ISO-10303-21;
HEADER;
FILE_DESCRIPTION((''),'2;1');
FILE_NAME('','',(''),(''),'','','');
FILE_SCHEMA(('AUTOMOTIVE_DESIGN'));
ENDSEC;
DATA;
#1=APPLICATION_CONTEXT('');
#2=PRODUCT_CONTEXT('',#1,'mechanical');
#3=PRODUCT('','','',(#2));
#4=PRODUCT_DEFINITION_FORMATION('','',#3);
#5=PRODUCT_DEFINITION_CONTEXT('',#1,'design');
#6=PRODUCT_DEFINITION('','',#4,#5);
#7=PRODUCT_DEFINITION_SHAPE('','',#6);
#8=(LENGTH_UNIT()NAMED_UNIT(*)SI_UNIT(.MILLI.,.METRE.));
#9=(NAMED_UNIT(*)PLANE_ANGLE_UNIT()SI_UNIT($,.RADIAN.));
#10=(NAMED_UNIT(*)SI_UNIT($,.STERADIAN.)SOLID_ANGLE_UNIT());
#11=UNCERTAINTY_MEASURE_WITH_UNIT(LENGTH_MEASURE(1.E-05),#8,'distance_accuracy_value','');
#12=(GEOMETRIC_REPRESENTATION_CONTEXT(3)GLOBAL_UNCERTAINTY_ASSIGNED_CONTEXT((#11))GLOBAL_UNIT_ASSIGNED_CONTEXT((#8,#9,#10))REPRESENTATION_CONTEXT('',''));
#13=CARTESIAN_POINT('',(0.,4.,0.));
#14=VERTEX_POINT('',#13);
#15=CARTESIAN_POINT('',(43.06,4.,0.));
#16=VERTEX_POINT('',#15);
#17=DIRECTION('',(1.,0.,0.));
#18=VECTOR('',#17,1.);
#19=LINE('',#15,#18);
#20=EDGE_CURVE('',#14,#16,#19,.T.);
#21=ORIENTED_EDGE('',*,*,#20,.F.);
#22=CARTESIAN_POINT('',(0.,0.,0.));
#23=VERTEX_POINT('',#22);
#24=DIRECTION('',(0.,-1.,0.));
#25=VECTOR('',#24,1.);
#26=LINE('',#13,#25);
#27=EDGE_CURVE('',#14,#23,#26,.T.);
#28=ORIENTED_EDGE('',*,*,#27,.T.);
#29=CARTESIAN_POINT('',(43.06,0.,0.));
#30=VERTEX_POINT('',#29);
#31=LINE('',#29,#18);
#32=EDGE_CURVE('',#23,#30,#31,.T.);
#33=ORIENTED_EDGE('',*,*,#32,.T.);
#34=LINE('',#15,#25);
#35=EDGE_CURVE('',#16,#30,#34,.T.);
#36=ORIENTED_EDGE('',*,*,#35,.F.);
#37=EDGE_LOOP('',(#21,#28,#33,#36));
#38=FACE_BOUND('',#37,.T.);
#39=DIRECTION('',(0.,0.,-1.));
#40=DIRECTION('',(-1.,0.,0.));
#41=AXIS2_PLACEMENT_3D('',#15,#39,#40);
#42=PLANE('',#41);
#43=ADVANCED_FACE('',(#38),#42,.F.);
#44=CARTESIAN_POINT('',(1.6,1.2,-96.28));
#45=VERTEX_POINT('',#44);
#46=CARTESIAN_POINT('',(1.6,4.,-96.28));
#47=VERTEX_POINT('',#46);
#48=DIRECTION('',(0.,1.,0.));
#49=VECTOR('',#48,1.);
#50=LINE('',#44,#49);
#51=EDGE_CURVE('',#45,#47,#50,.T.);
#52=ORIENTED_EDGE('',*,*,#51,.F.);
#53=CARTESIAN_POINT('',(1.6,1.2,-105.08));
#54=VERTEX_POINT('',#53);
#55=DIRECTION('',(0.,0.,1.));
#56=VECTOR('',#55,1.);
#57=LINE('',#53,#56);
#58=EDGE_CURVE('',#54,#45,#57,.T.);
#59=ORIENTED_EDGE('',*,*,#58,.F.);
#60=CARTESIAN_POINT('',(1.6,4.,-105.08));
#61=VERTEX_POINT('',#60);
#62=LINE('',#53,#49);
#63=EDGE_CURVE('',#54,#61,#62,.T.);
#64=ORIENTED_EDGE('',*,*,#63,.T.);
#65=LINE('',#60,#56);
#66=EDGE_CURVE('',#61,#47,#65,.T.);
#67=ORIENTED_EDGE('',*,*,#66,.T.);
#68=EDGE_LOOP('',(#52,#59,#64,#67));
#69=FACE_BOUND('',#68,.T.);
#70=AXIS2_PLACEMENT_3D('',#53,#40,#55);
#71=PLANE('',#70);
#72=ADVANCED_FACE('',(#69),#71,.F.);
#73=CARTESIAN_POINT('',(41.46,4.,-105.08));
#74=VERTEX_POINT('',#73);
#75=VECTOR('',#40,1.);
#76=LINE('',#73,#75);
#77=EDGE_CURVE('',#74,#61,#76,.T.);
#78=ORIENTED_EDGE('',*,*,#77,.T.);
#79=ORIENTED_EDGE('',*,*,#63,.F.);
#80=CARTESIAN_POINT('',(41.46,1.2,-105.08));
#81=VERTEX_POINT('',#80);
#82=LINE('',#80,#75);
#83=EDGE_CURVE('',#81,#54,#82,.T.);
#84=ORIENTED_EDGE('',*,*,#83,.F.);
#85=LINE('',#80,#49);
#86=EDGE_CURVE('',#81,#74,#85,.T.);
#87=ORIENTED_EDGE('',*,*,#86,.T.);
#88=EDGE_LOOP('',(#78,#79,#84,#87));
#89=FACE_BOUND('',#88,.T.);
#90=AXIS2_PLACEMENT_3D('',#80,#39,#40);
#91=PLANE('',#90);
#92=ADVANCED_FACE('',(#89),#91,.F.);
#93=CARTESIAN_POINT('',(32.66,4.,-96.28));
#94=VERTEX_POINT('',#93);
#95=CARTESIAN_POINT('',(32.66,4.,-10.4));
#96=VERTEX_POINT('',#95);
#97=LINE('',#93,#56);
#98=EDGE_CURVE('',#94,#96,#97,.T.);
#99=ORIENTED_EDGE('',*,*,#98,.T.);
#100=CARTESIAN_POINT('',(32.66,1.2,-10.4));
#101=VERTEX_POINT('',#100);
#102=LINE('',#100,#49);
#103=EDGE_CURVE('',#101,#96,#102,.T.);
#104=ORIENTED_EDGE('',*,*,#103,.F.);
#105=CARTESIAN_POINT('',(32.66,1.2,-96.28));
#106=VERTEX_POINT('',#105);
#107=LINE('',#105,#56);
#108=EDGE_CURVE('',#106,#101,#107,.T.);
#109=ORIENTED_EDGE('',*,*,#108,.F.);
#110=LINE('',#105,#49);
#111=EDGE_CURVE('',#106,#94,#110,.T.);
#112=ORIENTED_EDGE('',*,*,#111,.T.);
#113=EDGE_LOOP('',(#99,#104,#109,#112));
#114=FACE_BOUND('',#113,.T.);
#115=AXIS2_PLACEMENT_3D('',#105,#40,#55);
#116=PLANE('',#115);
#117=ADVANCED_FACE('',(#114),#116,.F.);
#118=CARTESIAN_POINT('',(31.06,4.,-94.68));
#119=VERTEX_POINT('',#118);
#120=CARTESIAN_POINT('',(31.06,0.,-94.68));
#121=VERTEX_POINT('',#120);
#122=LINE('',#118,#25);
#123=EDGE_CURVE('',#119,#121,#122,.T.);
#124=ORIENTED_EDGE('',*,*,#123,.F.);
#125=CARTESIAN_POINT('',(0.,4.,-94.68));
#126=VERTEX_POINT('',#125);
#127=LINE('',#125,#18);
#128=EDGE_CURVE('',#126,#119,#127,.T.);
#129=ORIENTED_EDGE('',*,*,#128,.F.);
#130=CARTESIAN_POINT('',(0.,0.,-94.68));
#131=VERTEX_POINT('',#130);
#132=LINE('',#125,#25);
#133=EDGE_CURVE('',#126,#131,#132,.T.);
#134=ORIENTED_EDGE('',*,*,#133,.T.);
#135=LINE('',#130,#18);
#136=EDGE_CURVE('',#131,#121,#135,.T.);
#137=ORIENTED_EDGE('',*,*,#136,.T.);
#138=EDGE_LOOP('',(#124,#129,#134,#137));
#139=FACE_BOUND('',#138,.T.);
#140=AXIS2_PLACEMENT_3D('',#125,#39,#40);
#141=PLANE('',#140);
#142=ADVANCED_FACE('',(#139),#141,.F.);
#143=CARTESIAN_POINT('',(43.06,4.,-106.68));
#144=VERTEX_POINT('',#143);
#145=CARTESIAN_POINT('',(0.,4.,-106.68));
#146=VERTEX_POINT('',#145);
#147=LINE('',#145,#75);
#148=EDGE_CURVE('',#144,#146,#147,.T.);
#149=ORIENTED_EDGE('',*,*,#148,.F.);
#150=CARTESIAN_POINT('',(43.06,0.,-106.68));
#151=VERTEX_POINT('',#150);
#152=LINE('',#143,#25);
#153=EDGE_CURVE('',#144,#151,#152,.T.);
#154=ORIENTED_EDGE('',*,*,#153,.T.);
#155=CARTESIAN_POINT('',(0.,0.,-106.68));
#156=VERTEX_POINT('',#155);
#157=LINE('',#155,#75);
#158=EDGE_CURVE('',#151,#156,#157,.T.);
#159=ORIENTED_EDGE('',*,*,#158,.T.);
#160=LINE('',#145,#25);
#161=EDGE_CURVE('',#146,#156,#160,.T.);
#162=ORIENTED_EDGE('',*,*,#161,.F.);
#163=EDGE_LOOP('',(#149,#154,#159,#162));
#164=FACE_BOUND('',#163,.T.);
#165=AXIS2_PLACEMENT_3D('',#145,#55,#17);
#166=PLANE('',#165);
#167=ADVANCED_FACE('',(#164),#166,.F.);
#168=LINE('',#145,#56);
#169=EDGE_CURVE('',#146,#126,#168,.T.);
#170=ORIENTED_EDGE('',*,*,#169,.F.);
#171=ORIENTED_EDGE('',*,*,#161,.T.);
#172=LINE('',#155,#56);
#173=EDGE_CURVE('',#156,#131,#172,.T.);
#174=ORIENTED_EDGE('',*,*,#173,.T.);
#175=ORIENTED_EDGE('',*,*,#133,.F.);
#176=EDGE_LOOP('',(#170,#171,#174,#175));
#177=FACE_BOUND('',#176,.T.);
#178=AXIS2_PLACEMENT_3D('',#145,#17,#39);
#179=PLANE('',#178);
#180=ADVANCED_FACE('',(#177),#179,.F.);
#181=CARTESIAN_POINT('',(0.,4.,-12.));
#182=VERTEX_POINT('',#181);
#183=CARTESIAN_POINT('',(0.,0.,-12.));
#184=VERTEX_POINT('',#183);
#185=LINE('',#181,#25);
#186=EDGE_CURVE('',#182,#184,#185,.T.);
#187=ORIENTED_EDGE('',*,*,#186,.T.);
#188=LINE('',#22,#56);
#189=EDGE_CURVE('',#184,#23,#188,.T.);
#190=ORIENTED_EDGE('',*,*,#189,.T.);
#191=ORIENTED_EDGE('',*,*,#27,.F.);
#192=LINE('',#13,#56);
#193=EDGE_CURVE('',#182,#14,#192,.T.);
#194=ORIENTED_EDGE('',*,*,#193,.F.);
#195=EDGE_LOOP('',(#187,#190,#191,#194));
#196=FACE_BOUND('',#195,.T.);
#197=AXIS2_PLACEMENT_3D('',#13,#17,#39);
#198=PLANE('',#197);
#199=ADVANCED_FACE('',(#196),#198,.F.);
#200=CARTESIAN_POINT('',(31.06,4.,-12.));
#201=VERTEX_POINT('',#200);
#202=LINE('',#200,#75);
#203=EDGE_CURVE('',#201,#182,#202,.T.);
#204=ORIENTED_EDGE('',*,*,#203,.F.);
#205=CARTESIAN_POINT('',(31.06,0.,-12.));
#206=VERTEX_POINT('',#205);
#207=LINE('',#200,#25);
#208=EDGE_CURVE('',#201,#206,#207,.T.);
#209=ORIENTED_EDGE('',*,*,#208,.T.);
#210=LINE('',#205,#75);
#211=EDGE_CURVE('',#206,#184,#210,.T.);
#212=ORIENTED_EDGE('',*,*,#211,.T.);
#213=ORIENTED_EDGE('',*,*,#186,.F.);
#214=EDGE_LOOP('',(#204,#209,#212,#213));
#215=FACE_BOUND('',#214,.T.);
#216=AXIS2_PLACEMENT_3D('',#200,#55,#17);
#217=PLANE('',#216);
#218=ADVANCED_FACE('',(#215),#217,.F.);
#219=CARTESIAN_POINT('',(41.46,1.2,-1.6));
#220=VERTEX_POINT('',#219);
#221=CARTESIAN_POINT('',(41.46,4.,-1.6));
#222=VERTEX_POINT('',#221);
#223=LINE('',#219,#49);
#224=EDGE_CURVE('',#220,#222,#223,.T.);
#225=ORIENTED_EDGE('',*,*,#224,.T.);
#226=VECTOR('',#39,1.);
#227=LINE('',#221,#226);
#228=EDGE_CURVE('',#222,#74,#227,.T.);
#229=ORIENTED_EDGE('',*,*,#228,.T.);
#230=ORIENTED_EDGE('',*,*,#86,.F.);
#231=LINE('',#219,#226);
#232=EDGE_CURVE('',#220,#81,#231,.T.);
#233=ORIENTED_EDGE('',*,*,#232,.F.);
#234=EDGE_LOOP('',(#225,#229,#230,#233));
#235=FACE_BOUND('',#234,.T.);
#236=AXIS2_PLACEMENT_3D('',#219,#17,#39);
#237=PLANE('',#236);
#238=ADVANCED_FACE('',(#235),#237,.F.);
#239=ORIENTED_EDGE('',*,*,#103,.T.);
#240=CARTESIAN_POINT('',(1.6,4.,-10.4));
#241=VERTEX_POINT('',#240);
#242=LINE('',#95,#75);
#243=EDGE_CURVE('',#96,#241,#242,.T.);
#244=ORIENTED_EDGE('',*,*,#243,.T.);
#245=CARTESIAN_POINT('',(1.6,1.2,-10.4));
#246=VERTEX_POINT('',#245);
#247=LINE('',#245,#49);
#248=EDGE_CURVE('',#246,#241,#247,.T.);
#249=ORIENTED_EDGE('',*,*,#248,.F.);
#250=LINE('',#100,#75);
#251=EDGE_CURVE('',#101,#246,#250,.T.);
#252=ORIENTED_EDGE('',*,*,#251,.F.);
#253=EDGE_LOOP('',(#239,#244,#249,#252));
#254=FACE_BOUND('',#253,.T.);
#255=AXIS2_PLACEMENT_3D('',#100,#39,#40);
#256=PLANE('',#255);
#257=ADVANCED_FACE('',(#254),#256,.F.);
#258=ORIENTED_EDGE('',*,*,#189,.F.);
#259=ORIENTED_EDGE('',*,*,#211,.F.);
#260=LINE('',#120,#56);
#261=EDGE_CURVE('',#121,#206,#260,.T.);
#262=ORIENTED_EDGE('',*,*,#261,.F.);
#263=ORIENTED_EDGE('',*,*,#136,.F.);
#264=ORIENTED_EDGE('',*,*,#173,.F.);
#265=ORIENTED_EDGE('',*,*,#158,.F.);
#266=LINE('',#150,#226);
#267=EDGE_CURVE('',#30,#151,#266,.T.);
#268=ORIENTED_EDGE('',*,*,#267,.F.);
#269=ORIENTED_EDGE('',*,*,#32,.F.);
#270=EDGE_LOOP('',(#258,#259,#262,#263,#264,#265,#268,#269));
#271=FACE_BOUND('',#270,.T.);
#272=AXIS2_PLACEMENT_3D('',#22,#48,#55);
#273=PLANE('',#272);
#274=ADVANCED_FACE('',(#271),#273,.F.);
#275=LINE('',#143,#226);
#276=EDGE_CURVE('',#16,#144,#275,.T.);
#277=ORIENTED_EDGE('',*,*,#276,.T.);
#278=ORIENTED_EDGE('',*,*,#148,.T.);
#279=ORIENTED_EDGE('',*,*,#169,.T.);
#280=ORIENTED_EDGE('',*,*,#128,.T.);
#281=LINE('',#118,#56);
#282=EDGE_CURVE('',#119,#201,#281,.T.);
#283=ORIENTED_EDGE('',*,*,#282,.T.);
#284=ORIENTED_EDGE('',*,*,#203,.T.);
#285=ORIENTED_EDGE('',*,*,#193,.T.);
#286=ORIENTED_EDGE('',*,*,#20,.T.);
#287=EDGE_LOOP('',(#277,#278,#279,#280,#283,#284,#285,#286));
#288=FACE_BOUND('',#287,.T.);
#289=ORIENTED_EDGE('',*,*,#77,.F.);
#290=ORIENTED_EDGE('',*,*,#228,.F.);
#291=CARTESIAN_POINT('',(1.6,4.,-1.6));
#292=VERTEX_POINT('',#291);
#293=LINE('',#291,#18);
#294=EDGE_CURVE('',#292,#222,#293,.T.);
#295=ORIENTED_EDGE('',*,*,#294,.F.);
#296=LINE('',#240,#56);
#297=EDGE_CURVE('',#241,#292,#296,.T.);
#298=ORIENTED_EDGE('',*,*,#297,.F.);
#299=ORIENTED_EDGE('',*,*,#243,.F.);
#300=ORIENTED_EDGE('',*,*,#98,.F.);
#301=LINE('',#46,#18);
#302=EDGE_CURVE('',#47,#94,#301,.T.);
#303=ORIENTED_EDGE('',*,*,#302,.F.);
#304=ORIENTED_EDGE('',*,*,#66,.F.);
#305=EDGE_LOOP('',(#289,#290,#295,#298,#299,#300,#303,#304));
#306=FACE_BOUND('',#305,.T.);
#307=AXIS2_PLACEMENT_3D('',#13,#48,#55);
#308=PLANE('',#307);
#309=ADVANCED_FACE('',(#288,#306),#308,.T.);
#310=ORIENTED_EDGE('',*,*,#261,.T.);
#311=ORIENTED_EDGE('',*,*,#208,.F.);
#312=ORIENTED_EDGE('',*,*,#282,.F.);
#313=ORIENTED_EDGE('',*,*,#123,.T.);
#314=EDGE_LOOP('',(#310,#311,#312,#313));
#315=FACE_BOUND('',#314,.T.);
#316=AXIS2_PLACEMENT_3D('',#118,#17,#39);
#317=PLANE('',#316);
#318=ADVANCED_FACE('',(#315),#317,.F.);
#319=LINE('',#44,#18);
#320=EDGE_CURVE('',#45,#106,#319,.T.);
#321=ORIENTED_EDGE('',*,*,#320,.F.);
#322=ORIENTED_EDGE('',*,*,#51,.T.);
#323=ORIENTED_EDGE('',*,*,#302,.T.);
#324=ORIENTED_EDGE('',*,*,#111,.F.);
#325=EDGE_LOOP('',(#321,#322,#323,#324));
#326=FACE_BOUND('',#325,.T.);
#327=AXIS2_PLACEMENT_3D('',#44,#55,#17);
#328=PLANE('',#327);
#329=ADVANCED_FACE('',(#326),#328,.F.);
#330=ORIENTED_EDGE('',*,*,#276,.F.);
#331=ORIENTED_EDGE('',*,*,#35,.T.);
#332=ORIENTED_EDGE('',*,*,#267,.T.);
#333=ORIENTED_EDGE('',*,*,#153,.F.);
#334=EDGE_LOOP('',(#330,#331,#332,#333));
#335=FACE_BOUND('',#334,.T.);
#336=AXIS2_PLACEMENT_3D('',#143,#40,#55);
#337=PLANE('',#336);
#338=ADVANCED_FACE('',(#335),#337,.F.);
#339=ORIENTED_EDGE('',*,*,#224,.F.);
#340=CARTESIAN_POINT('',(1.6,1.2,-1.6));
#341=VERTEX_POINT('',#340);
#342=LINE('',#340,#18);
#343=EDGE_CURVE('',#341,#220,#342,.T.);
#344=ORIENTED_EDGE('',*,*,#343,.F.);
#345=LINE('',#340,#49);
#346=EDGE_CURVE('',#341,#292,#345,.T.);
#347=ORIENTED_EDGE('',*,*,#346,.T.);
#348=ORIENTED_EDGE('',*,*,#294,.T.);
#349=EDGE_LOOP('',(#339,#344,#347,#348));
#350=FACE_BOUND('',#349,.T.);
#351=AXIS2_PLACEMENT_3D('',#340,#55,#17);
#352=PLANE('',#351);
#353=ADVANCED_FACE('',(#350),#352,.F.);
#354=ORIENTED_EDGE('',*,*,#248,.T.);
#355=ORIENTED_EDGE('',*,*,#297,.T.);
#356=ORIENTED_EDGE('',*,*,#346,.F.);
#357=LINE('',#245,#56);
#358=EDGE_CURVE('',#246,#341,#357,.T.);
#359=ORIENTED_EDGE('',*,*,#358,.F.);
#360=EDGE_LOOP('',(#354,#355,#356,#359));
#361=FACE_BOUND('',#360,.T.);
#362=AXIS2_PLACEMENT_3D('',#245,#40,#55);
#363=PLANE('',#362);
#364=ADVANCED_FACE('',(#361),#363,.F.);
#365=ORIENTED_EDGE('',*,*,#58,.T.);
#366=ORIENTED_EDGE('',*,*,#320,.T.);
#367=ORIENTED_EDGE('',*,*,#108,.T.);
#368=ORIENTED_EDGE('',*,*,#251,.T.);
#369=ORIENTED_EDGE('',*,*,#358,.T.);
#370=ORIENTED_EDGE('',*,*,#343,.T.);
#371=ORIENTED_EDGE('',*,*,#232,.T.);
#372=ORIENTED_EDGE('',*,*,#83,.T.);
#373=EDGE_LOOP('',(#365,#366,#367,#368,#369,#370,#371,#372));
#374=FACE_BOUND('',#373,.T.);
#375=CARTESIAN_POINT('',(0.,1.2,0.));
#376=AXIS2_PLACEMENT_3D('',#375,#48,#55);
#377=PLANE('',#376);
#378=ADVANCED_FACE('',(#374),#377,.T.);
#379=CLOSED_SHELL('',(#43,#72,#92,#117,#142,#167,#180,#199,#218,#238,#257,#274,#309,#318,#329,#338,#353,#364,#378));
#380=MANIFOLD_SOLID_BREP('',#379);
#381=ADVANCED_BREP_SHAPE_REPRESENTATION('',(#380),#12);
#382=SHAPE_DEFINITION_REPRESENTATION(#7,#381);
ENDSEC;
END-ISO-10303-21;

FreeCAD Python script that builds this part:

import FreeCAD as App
import Part
import Sketcher
Q = App.Units.Quantity


def add_polygon(sketch, points):
    """Adds a closed chain of lines whose ends are joined by coincident constraints."""
    first, n = sketch.GeometryCount, len(points)
    for a, b in zip(points, points[1:] + points[:1]):
        sketch.addGeometry(Part.LineSegment(App.Vector(*a, 0), App.Vector(*b, 0)), False)
    for i in range(n):
        sketch.addConstraint(Sketcher.Constraint("Coincident", first + i, 2, first + (i + 1) % n, 1))

doc = App.newDocument("Part")
params = doc.addObject("Spreadsheet::Sheet", "Params")
for row, (alias, value) in enumerate([
    ("sketch1_height", "12 mm"),
    ("sketch1_width", "43.06 mm"),
    ("sketch1_height2", "82.68 mm"),
    ("pad1_length", "4 mm"),
    ("sketch2_height", "8.8 mm"),
    ("sketch2_width", "31.06 mm"),
    ("sketch2_width2", "39.86 mm"),
    ("sketch2_height2", "85.88 mm"),
    ("pocket1_length", "2.8 mm"),
], start=1):
    params.set(f"A{row}", alias)
    params.set(f"B{row}", "=" + value)
    params.setAlias(f"B{row}", alias)

body = doc.addObject("PartDesign::Body", "Body")

sketch1 = doc.addObject("Sketcher::SketchObject", "Sketch")
body.addObject(sketch1)
sketch1.AttachmentSupport = (doc.XZ_Plane, [""])
sketch1.MapMode = "FlatFace"
add_polygon(sketch1, [(43, -107), (0, -107), (0, -95), (31, -95), (31, -12), (0, -12), (0, 0), (43, 0)])
sketch1.addConstraint([
    Sketcher.Constraint("Horizontal", 0),
    Sketcher.Constraint("Vertical", 1),
    Sketcher.Constraint("Horizontal", 2),
    Sketcher.Constraint("Vertical", 3),
    Sketcher.Constraint("Horizontal", 4),
    Sketcher.Constraint("Vertical", 5),
    Sketcher.Constraint("Horizontal", 6),
    Sketcher.Constraint("Vertical", 7),
    Sketcher.Constraint("Coincident", 5, 2, -1, 1),
    Sketcher.Constraint("PointOnObject", 0, 2, -2),
    Sketcher.Constraint("Equal", 1, 5),
    Sketcher.Constraint("DistanceY", 1, 1, 1, 2, Q("12 mm")),
    Sketcher.Constraint("DistanceX", 3, 2, 6, 2, Q("12 mm")),
    Sketcher.Constraint("DistanceX", 0, 2, 0, 1, Q("43.06 mm")),
    Sketcher.Constraint("DistanceY", 3, 1, 3, 2, Q("82.68 mm")),
])
sketch1.setExpression("Constraints[19]", "Params.sketch1_height")
sketch1.setExpression("Constraints[21]", "Params.sketch1_width")
sketch1.setExpression("Constraints[22]", "Params.sketch1_height2")
pad1 = doc.addObject("PartDesign::Pad", "Pad")
body.addObject(pad1)
pad1.Profile = sketch1
pad1.setExpression("Length", "Params.pad1_length")
pad1.Reversed = True

sketch2 = doc.addObject("Sketcher::SketchObject", "Sketch001")
body.addObject(sketch2)
sketch2.AttachmentSupport = (doc.XZ_Plane, [""])
sketch2.MapMode = "FlatFace"
sketch2.AttachmentOffset = App.Placement(App.Vector(0, 0, -4), App.Rotation())
add_polygon(sketch2, [(2, -105), (2, -96), (33, -96), (33, -10), (2, -10), (2, -2), (41, -2), (41, -105)])
sketch2.addConstraint([
    Sketcher.Constraint("Vertical", 0),
    Sketcher.Constraint("Horizontal", 1),
    Sketcher.Constraint("Vertical", 2),
    Sketcher.Constraint("Horizontal", 3),
    Sketcher.Constraint("Vertical", 4),
    Sketcher.Constraint("Horizontal", 5),
    Sketcher.Constraint("Vertical", 6),
    Sketcher.Constraint("Horizontal", 7),
    Sketcher.Constraint("Vertical", 0, 2, 3, 2),
    Sketcher.Constraint("Equal", 0, 4),
    Sketcher.Constraint("DistanceY", 0, 1, 0, 2, Q("8.8 mm")),
    Sketcher.Constraint("DistanceX", 1, 1, 1, 2, Q("31.06 mm")),
    Sketcher.Constraint("DistanceX", 5, 1, 5, 2, Q("39.86 mm")),
    Sketcher.Constraint("DistanceY", 2, 1, 2, 2, Q("85.88 mm")),
    Sketcher.Constraint("DistanceX", -1, 1, 0, 2, Q("1.6 mm")),
    Sketcher.Constraint("DistanceY", 2, 2, -1, 1, Q("10.4 mm")),
])
sketch2.setExpression("Constraints[18]", "Params.sketch2_height")
sketch2.setExpression("Constraints[19]", "Params.sketch2_width")
sketch2.setExpression("Constraints[20]", "Params.sketch2_width2")
sketch2.setExpression("Constraints[21]", "Params.sketch2_height2")
pocket1 = doc.addObject("PartDesign::Pocket", "Pocket")
body.addObject(pocket1)
pocket1.Profile = sketch2
pocket1.setExpression("Length", "Params.pocket1_length")
pocket1.Reversed = True

doc.recompute()
